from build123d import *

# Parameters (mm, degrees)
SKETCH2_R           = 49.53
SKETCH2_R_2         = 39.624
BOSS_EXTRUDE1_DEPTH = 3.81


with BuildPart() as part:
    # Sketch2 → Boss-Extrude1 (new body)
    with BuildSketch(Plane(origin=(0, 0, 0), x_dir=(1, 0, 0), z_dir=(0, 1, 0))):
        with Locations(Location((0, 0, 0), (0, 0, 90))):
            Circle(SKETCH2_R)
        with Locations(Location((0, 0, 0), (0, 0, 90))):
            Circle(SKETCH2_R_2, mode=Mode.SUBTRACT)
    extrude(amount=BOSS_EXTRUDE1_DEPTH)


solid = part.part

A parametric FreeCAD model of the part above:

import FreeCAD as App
import Part
import Sketcher
Q = App.Units.Quantity

doc = App.newDocument("Part")
body = doc.addObject("PartDesign::Body", "Body")

sketch1 = body.newObject("Sketcher::SketchObject", "Sketch")
sketch1.AttachmentSupport = (doc.getObject("XZ_Plane"), [""])
sketch1.MapMode = "FlatFace"
sketch1.addGeometry([
    Part.Circle(App.Vector(0, 0, 0), App.Vector(0, 0, 1), 49.53),
    Part.Circle(App.Vector(0, 0, 0), App.Vector(0, 0, 1), 39.624),
], False)
sketch1.addConstraint([
    Sketcher.Constraint("Coincident", 0, 3, -1, 1),
    Sketcher.Constraint("Coincident", 1, 3, -1, 1),
    Sketcher.Constraint("Diameter", 0, Q("3.9 in")),
    Sketcher.Constraint("Diameter", 1, Q("3.12 in")),
])
pad1 = body.newObject("PartDesign::Pad", "Pad")
pad1.Profile = sketch1
pad1.Length = Q("0.15 in")
pad1.Reversed = True

doc.recompute()
